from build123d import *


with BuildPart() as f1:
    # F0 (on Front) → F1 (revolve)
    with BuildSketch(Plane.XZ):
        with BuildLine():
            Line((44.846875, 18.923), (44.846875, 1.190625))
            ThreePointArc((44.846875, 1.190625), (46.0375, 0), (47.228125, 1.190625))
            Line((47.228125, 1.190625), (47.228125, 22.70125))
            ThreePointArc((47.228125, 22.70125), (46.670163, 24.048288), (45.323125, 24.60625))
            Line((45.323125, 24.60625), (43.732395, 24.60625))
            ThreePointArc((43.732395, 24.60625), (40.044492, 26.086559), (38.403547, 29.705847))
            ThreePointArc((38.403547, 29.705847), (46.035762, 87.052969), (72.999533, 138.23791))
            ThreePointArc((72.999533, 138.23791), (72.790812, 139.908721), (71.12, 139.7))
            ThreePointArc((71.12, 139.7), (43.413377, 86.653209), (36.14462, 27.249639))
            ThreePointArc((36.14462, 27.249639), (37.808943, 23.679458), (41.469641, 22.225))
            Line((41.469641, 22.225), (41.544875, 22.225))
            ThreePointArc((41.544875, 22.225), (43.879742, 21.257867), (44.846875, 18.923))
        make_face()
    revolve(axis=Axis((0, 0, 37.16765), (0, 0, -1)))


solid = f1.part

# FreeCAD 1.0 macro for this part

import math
import FreeCAD as App
import Part
import Sketcher
from FreeCAD import Vector
Q = App.Units.Quantity

doc = App.newDocument("Part")
params = doc.addObject("Spreadsheet::Sheet", "Params")
for row, (alias, value) in enumerate([
    ("sketch1_radius", "0.21 in"),
    ("sketch1_radius2", "0.1299999 in"),
    ("sketch1_radius3", "0.046875 in"),
    ("sketch1_radius4", "0.0750001 in"),
    ("revolution_angle", "360 deg"),
], start=1):
    params.set(f"A{row}", alias)
    params.set(f"B{row}", "=" + value)
    params.setAlias(f"B{row}", alias)

body = doc.addObject("PartDesign::Body", "Body")

# Sketch on XZ plane
sketch1 = body.newObject("Sketcher::SketchObject", "Sketch")
sketch1.AttachmentSupport = (doc.getObject("XZ_Plane"), [""])
sketch1.MapMode = "FlatFace"
sketch1.addGeometry([
    Part.LineSegment(Vector(44.846875, 18.923, 0), Vector(44.846875, 1.190625, 0)),  # 0
    Part.ArcOfCircle(Part.Circle(Vector(46.0375, 1.190625, 0), Vector(0, 0, 1), 1.190625), math.radians(180), math.radians(360)),  # 1
    Part.LineSegment(Vector(47.228125, 1.190625, 0), Vector(47.228125, 22.70125, 0)),  # 2
    Part.ArcOfCircle(Part.Circle(Vector(45.323124, 22.701249, 0), Vector(0, 0, 1), 1.905001), math.radians(0.000043), math.radians(89.999957)),  # 3
    Part.LineSegment(Vector(45.323125, 24.60625, 0), Vector(43.732395, 24.60625, 0)),  # 4
    Part.ArcOfCircle(Part.Circle(Vector(43.732394, 29.94025, 0), Vector(0, 0, 1), 5.334), math.radians(-177.481322), math.radians(-89.99999)),  # 5
    Part.ArcOfCircle(Part.Circle(Vector(203.200009, 36.954851, 0), Vector(0, 0, 1), 164.955819), math.radians(142.120624), math.radians(182.518681)),  # 6
    Part.ArcOfCircle(Part.Circle(Vector(72.059766, 138.968955, 0), Vector(0, 0, 1), 1.190625), math.radians(-37.879367), math.radians(142.120625)),  # 7
    Part.ArcOfCircle(Part.Circle(Vector(203.199997, 36.954856, 0), Vector(0, 0, 1), 167.337056), math.radians(142.120622), math.radians(183.324907)),  # 8
    Part.ArcOfCircle(Part.Circle(Vector(41.469641, 27.558999, 0), Vector(0, 0, 1), 5.333999), math.radians(-176.675103), math.radians(-89.999998)),  # 9
    Part.LineSegment(Vector(41.469641, 22.225, 0), Vector(41.544875, 22.225, 0)),  # 10
    Part.ArcOfCircle(Part.Circle(Vector(41.544876, 18.923001, 0), Vector(0, 0, 1), 3.301999), math.radians(-0.000024), math.radians(90.000024)),  # 11
], False)
sketch1.addConstraint([
    Sketcher.Constraint("Tangent", 0, 2, 1, 1),
    Sketcher.Constraint("Tangent", 1, 2, 2, 1),
    Sketcher.Constraint("Tangent", 2, 2, 3, 1),
    Sketcher.Constraint("Tangent", 3, 2, 4, 1),
    Sketcher.Constraint("Tangent", 4, 2, 5, 2),
    Sketcher.Constraint("Tangent", 5, 1, 6, 2),
    Sketcher.Constraint("Tangent", 6, 1, 7, 1),
    Sketcher.Constraint("Tangent", 7, 2, 8, 1),
    Sketcher.Constraint("Tangent", 8, 2, 9, 1),
    Sketcher.Constraint("Tangent", 9, 2, 10, 1),
    Sketcher.Constraint("Tangent", 10, 2, 11, 2),
    Sketcher.Constraint("Tangent", 11, 1, 0, 1),
    Sketcher.Constraint("Vertical", 0),
    Sketcher.Constraint("Vertical", 2),
    Sketcher.Constraint("Horizontal", 4),
    Sketcher.Constraint("Horizontal", 10),
    Sketcher.Constraint("Equal", 1, 7),
    Sketcher.Constraint("Equal", 5, 9),
    Sketcher.Constraint("Radius", 5, Q("0.21 in")),
    Sketcher.Constraint("Radius", 11, Q("0.1299999 in")),
    Sketcher.Constraint("DistanceX", -1, 1, 8, 3, Q("7.9999999 in")),
    Sketcher.Constraint("Radius", 1, Q("0.046875 in")),
    Sketcher.Constraint("Radius", 3, Q("0.0750001 in")),
    Sketcher.Constraint("DistanceX", -1, 1, 7, 2, Q("2.8 in")),
    Sketcher.Constraint("DistanceY", -1, 1, 7, 2, Q("5.5 in")),
    Sketcher.Constraint("DistanceX", -1, 1, 1, 3, Q("1.8125 in")),
    Sketcher.Constraint("DistanceY", -1, 1, 1, 3, Q("0.046875 in")),
    Sketcher.Constraint("DistanceY", -1, 1, 9, 3, Q("1.085 in")),
    Sketcher.Constraint("DistanceY", -1, 1, 3, 2, Q("0.96875 in")),
    Sketcher.Constraint("Radius", 6, Q("164.955819 mm")),
    Sketcher.Constraint("Radius", 8, Q("167.337056 mm")),
    Sketcher.Constraint("DistanceX", 4, 2, 4, 1, Q("1.59073 mm")),
])
sketch1.setExpression("Constraints[18]", "Params.sketch1_radius")
sketch1.setExpression("Constraints[19]", "Params.sketch1_radius2")
sketch1.setExpression("Constraints[21]", "Params.sketch1_radius3")
sketch1.setExpression("Constraints[22]", "Params.sketch1_radius4")
revolution = body.newObject("PartDesign::Revolution", "Revolution")
revolution.Profile = sketch1
revolution.ReferenceAxis = (sketch1, ["V_Axis"])
revolution.setExpression("Angle", "Params.revolution_angle")

doc.recompute()
